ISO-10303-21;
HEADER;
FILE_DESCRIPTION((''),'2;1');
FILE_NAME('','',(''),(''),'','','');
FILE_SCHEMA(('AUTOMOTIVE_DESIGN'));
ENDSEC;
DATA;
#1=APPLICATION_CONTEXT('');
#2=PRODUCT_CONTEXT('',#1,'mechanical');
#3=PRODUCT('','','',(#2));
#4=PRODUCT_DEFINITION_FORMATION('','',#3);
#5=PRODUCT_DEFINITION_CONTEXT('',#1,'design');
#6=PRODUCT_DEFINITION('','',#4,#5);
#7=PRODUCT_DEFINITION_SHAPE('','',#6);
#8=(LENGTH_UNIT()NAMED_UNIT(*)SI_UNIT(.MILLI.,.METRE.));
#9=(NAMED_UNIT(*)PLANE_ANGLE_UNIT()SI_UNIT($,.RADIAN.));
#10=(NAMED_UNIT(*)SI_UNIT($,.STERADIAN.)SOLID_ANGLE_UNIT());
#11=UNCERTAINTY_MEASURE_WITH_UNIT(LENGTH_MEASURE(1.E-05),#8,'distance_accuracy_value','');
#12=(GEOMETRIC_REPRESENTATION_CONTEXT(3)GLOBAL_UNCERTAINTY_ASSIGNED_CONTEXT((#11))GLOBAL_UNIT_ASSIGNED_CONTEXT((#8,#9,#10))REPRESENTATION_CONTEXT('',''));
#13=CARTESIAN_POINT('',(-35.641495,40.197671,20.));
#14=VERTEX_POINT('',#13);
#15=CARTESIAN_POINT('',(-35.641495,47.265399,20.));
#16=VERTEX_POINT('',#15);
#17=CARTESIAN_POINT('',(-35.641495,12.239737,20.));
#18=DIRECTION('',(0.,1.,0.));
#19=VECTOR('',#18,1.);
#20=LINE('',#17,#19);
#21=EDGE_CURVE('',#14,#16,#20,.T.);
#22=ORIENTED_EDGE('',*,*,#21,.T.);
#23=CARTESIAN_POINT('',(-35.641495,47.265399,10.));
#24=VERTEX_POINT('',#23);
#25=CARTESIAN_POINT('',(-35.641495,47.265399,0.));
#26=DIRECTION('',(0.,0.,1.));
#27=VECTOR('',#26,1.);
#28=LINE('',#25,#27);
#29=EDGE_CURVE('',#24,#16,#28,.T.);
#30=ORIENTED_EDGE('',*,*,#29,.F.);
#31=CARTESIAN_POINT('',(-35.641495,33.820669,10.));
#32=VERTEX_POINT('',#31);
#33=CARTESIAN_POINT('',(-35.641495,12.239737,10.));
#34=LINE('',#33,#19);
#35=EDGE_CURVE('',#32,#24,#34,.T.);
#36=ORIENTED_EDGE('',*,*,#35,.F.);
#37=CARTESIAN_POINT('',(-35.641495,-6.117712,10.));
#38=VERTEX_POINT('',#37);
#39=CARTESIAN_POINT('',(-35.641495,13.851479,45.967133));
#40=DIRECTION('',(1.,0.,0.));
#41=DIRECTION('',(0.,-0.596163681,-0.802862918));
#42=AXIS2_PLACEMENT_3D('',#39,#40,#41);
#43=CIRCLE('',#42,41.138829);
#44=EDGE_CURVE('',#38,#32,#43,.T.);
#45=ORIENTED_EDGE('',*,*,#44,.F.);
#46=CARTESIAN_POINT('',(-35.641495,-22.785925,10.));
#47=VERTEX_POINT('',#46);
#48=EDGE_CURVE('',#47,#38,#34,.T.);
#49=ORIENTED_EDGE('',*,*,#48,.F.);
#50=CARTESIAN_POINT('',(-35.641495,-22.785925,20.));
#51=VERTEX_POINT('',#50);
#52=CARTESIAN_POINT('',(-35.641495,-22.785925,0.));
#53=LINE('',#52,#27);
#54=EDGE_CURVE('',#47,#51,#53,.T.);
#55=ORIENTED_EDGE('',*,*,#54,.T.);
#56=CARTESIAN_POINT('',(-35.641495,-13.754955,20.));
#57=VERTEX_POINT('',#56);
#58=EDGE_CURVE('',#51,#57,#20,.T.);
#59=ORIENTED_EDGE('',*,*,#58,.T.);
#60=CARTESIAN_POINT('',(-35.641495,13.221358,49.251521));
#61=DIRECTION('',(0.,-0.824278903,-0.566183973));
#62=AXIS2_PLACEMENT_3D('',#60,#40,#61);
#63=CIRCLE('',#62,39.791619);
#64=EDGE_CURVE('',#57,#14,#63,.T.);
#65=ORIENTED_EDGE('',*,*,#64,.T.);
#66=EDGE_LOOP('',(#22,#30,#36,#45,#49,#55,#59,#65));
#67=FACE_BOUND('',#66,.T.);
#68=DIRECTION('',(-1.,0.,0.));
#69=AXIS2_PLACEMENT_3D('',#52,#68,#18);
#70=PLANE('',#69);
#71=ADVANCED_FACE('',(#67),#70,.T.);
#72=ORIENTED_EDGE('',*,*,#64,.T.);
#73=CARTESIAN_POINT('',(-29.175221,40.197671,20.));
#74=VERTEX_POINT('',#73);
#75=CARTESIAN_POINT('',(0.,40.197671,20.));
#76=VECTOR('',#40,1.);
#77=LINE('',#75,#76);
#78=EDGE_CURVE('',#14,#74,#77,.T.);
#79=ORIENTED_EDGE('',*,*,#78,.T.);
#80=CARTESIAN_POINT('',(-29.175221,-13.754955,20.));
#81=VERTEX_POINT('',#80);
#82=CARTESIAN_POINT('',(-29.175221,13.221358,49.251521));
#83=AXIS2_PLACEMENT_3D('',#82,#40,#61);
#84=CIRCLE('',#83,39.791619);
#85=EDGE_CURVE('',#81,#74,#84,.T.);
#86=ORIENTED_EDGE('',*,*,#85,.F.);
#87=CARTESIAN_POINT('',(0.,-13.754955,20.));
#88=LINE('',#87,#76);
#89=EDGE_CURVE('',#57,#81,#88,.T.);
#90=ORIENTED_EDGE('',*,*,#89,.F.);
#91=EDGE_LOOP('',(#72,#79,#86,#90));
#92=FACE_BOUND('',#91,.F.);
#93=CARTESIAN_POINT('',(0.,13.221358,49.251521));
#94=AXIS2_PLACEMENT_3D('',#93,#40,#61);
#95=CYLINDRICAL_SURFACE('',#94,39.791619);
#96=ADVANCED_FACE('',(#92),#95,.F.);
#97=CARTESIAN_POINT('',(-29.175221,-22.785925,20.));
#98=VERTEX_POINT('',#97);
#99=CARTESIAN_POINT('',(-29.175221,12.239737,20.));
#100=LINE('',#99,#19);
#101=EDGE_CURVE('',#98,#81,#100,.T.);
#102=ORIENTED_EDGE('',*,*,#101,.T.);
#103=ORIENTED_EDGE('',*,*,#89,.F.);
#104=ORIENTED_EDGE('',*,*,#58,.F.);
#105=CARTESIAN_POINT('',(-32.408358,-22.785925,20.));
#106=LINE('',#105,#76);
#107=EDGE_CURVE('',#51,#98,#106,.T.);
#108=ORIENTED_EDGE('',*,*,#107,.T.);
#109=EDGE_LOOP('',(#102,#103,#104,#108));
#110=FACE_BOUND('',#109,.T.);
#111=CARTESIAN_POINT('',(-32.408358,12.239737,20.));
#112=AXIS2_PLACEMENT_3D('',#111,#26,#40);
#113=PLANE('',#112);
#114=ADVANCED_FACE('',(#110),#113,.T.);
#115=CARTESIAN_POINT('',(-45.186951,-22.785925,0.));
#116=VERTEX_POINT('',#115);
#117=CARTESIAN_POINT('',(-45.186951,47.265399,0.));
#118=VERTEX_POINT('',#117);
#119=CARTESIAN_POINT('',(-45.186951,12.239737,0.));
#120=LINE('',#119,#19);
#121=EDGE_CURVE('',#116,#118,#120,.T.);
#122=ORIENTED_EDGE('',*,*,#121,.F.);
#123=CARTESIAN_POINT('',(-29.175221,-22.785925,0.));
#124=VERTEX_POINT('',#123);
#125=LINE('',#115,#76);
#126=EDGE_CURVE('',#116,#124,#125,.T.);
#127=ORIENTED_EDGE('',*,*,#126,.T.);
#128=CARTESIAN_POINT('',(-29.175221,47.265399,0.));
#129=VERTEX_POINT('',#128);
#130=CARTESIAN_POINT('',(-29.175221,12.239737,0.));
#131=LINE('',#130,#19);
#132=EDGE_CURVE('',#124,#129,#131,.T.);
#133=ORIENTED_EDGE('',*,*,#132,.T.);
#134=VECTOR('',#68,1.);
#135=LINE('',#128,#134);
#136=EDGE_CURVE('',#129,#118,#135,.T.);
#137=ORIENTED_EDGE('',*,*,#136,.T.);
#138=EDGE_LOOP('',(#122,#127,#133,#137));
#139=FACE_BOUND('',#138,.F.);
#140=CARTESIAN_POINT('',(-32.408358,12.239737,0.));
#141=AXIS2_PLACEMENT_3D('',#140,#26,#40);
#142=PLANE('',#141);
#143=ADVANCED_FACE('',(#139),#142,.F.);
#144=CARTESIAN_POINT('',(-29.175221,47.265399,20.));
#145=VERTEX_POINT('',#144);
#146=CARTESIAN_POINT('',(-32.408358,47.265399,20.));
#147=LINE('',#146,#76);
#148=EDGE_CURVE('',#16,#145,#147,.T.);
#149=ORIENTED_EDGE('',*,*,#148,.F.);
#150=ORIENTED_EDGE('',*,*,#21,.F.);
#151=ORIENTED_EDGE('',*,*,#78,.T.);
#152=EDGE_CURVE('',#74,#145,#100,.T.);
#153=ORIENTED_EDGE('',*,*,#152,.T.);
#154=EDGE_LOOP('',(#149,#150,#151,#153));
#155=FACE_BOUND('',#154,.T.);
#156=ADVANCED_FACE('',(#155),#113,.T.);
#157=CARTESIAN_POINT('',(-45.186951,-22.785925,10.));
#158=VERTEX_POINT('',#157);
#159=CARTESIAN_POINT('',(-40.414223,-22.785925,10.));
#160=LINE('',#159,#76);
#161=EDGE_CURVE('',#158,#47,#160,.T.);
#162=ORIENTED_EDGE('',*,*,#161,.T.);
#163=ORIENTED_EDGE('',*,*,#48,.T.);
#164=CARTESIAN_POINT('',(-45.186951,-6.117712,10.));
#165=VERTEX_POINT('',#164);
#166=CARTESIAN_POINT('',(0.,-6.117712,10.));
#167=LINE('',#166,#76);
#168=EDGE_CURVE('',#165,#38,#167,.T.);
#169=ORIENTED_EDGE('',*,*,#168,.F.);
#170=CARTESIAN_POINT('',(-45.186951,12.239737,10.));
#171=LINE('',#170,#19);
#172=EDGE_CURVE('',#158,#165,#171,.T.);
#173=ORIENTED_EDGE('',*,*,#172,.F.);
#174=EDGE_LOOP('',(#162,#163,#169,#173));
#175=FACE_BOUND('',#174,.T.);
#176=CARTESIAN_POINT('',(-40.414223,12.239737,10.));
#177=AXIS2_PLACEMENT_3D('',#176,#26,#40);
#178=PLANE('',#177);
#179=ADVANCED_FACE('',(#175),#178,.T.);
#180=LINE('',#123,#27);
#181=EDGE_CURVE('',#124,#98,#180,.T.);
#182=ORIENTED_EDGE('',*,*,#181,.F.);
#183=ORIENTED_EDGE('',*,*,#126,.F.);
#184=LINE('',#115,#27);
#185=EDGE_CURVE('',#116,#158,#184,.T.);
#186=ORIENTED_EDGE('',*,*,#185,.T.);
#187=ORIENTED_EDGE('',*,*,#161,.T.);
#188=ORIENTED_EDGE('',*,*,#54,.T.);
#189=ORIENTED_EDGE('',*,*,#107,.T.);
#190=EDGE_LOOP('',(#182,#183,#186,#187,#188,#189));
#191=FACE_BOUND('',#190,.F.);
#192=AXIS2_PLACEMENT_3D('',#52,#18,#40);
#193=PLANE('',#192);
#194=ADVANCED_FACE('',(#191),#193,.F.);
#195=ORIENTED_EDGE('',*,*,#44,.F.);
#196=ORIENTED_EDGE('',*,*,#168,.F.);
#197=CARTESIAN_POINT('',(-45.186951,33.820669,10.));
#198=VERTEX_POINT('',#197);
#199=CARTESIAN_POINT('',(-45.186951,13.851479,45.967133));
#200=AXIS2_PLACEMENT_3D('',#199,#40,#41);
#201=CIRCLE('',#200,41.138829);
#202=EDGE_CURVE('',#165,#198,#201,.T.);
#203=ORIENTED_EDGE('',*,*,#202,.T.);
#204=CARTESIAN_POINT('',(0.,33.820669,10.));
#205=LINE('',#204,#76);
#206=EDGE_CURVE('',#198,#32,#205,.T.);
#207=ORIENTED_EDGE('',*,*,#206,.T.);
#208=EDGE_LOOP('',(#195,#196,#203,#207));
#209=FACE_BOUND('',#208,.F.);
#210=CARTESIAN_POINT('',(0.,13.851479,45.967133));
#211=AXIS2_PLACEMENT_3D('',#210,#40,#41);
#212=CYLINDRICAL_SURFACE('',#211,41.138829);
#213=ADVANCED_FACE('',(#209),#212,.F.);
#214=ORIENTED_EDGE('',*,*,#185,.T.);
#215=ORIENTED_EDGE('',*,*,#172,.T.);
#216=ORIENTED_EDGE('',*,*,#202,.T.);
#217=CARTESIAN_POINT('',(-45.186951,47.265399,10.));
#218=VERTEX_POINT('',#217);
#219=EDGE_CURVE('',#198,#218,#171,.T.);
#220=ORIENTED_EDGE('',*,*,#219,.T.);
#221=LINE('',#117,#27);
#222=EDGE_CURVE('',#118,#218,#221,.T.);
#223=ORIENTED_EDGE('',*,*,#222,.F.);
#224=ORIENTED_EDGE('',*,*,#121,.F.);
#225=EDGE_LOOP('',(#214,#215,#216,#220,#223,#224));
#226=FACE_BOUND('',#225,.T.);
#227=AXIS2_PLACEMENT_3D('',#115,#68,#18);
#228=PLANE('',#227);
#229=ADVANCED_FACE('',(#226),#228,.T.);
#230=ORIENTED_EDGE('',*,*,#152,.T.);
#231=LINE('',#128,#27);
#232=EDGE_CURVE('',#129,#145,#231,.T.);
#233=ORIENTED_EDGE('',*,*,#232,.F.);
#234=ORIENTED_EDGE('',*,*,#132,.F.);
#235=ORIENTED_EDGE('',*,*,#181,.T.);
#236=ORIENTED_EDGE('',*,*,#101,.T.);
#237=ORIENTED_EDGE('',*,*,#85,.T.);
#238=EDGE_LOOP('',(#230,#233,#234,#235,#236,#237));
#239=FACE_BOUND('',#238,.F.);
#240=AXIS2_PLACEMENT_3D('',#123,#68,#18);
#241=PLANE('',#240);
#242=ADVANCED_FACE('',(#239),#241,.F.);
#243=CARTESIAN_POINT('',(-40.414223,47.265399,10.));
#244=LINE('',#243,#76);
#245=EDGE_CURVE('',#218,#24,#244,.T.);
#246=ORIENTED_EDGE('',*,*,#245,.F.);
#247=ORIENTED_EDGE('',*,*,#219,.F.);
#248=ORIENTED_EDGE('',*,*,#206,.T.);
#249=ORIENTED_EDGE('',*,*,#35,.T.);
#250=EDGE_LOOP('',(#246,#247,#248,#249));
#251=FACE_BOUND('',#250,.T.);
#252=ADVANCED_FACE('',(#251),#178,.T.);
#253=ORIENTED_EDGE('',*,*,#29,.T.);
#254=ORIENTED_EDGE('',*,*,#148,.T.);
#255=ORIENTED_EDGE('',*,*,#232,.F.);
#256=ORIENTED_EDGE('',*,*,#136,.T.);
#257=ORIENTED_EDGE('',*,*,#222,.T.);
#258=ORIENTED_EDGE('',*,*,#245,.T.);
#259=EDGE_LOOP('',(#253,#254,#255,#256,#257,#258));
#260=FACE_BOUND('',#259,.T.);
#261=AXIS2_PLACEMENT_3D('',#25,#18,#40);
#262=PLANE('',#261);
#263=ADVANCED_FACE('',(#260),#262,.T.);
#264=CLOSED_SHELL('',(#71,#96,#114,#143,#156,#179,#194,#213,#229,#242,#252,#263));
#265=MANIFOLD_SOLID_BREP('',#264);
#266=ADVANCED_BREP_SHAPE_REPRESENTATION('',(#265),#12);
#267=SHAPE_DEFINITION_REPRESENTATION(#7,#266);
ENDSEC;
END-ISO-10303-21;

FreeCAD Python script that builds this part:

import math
import FreeCAD as App
import Part
import Sketcher

V = App.Vector
Q = App.Units.Quantity


def add_polygon(sketch, points):
    """Adds a closed chain of lines whose ends are joined by coincident constraints."""
    first, n = sketch.GeometryCount, len(points)
    for a, b in zip(points, points[1:] + points[:1]):
        sketch.addGeometry(Part.LineSegment(App.Vector(*a, 0), App.Vector(*b, 0)), False)
    for i in range(n):
        sketch.addConstraint(Sketcher.Constraint("Coincident", first + i, 2, first + (i + 1) % n, 1))

doc = App.newDocument("Part")
body = doc.addObject("PartDesign::Body", "Body")

# Sketch on XY plane
sketch1 = body.newObject("Sketcher::SketchObject", "Sketch")
sketch1.AttachmentSupport = (doc.getObject("XY_Plane"), [""])
sketch1.MapMode = "FlatFace"
add_polygon(sketch1, [(-45.186951, 47.265399), (-45.186951, -22.785925), (-35.641495, -22.785925), (-35.641495, 47.265399)])  # lines 0-3
sketch1.addConstraint([
    Sketcher.Constraint("Vertical", 0),
    Sketcher.Constraint("Horizontal", 1),
    Sketcher.Constraint("Vertical", 2),
    Sketcher.Constraint("Horizontal", 3),
    Sketcher.Constraint("DistanceY", -1, 1, 2, 2, Q("47.265399 mm")),
    Sketcher.Constraint("DistanceX", 1, 1, 1, 2, Q("9.545457 mm")),
    Sketcher.Constraint("DistanceY", 0, 2, 0, 1, Q("70.051323 mm")),
    Sketcher.Constraint("DistanceX", 0, 2, -1, 1, Q("45.186951 mm")),
])
pad1 = body.newObject("PartDesign::Pad", "Pad")
pad1.Profile = sketch1
pad1.Length = 10

# Sketch on YZ plane
sketch2 = body.newObject("Sketcher::SketchObject", "Sketch001")
sketch2.AttachmentSupport = (doc.getObject("YZ_Plane"), [""])
sketch2.MapMode = "FlatFace"
sketch2.addGeometry([
    Part.ArcOfCircle(Part.Circle(V(13.851479, 45.967133, 0), V(0, 0, 1), 41.138829), math.radians(-126.595633), math.radians(-51.936813)),
    Part.LineSegment(V(39.214806, 13.577245, 0), V(-10.673997, 12.938293, 0)),
], False)
sketch2.addConstraint([
    Sketcher.Constraint("Coincident", 0, 1, 1, 2),
    Sketcher.Constraint("Coincident", 1, 1, 0, 2),
    Sketcher.Constraint("Radius", 0, Q("41.138829 mm")),
    Sketcher.Constraint("DistanceX", -1, 1, 0, 3, Q("13.851479 mm")),
    Sketcher.Constraint("DistanceY", 0, 1, 0, 3, Q("33.02884 mm")),
    Sketcher.Constraint("DistanceY", 1, 1, 0, 3, Q("32.389888 mm")),
    Sketcher.Constraint("DistanceY", -1, 1, 0, 3, Q("45.967133 mm")),
])
pocket1 = body.newObject("PartDesign::Pocket", "Pocket")
pocket1.Profile = sketch2
pocket1.Length = 50

# Sketch on XY plane
sketch3 = body.newObject("Sketcher::SketchObject", "Sketch002")
sketch3.AttachmentSupport = (doc.getObject("XY_Plane"), [""])
sketch3.MapMode = "FlatFace"
add_polygon(sketch3, [(-35.641495, 47.265399), (-35.641495, -22.785925), (-29.175221, -22.785925), (-29.175221, 47.265399)])  # lines 0-3
sketch3.addConstraint([
    Sketcher.Constraint("Vertical", 0),
    Sketcher.Constraint("Horizontal", 1),
    Sketcher.Constraint("Vertical", 2),
    Sketcher.Constraint("Horizontal", 3),
    Sketcher.Constraint("DistanceY", -1, 1, 2, 2, Q("47.265399 mm")),
    Sketcher.Constraint("DistanceX", 1, 1, 1, 2, Q("6.466273 mm")),
    Sketcher.Constraint("DistanceY", 0, 2, 0, 1, Q("70.051323 mm")),
    Sketcher.Constraint("DistanceX", 1, 2, -1, 1, Q("29.175221 mm")),
])
pad2 = body.newObject("PartDesign::Pad", "Pad001")
pad2.Profile = sketch3
pad2.Length = 20

# Sketch on YZ plane
sketch4 = body.newObject("Sketcher::SketchObject", "Sketch003")
sketch4.AttachmentSupport = (doc.getObject("YZ_Plane"), [""])
sketch4.MapMode = "FlatFace"
sketch4.addGeometry([
    Part.LineSegment(V(46.000224, 26.69229, 0), V(-19.578034, 26.722144, 0)),
    Part.ArcOfCircle(Part.Circle(V(13.221358, 49.251521, 0), V(0, 0, 1), 39.791619), math.radians(-145.515451), math.radians(-34.536716)),
], False)
sketch4.addConstraint([
    Sketcher.Constraint("Coincident", 0, 1, 1, 2),
    Sketcher.Constraint("Coincident", 1, 1, 0, 2),
    Sketcher.Constraint("Radius", 1, Q("39.791619 mm")),
    Sketcher.Constraint("DistanceX", -1, 1, 1, 3, Q("13.221358 mm")),
    Sketcher.Constraint("DistanceY", -1, 1, 1, 3, Q("49.251521 mm")),
    Sketcher.Constraint("DistanceY", -1, 1, 0, 1, Q("26.69229 mm")),
    Sketcher.Constraint("Distance", 0, Q("65.578265 mm")),
])
pocket2 = body.newObject("PartDesign::Pocket", "Pocket001")
pocket2.Profile = sketch4
pocket2.Length = 50

doc.recompute()
